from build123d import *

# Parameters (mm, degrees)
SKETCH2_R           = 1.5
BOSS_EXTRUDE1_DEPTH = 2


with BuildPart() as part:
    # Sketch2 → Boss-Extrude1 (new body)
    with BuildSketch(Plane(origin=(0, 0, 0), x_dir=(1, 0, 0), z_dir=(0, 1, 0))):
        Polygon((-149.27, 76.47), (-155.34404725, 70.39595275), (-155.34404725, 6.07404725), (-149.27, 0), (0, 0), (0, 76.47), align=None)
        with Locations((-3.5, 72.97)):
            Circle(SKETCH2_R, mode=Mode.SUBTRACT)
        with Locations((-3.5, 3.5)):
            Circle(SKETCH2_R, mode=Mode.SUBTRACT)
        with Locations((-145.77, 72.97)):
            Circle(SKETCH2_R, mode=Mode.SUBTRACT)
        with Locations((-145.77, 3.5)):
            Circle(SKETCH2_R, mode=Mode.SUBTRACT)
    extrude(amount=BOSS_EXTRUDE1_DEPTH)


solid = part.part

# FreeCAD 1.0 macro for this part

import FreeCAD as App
import Part
import Sketcher
from FreeCAD import Vector


def add_polygon(sketch, points):
    """Adds a closed chain of lines whose ends are joined by coincident constraints."""
    first, n = sketch.GeometryCount, len(points)
    for a, b in zip(points, points[1:] + points[:1]):
        sketch.addGeometry(Part.LineSegment(App.Vector(*a, 0), App.Vector(*b, 0)), False)
    for i in range(n):
        sketch.addConstraint(Sketcher.Constraint("Coincident", first + i, 2, first + (i + 1) % n, 1))

doc = App.newDocument("Part")
body = doc.addObject("PartDesign::Body", "Body")

sketch1 = body.newObject("Sketcher::SketchObject", "Sketch")
sketch1.AttachmentSupport = (doc.getObject("XZ_Plane"), [""])
sketch1.MapMode = "FlatFace"
add_polygon(sketch1, [(-149.3, -76.5), (-155.3, -70.4), (-155.3, -6.1), (-149.3, 0), (0, 0), (0, -76.5)])
sketch1.addGeometry(Part.Circle(Vector(-145.8, -3.5, 0), Vector(0, 0, 1), 1.5), False)
sketch1.addGeometry(Part.Circle(Vector(-3.5, -3.5, 0), Vector(0, 0, 1), 1.5), False)
sketch1.addGeometry(Part.Circle(Vector(-145.8, -73, 0), Vector(0, 0, 1), 1.5), False)
sketch1.addGeometry(Part.Circle(Vector(-3.5, -73, 0), Vector(0, 0, 1), 1.5), False)
sketch1.addConstraint(Sketcher.Constraint("Vertical", 1))
sketch1.addConstraint(Sketcher.Constraint("Horizontal", 3))
sketch1.addConstraint(Sketcher.Constraint("Vertical", 4))
sketch1.addConstraint(Sketcher.Constraint("Horizontal", 5))
sketch1.addConstraint(Sketcher.Constraint("Coincident", 3, 2, -1, 1))
sketch1.addConstraint(Sketcher.Constraint("Equal", 6, 7))
sketch1.addConstraint(Sketcher.Constraint("Equal", 7, 8))
sketch1.addConstraint(Sketcher.Constraint("Equal", 8, 9))
sketch1.addConstraint(Sketcher.Constraint("Perpendicular", 0, 2))
sketch1.addConstraint(Sketcher.Constraint("Horizontal", 6, 3, 7, 3))
sketch1.addConstraint(Sketcher.Constraint("Horizontal", 8, 3, 9, 3))
sketch1.addConstraint(Sketcher.Constraint("Vertical", 6, 3, 8, 3))
sketch1.addConstraint(Sketcher.Constraint("Vertical", 7, 3, 9, 3))
sketch1.addConstraint(Sketcher.Constraint("Vertical", 2, 2, 5, 2))
sketch1.addConstraint(Sketcher.Constraint("Equal", 0, 2))
sketch1.addConstraint(Sketcher.Constraint("Diameter", 6, 3.0))
sketch1.addConstraint(Sketcher.Constraint("DistanceX", 3, 1, 3, 2, 149.27))
sketch1.addConstraint(Sketcher.Constraint("DistanceY", 4, 2, 4, 1, 76.47))
sketch1.addConstraint(Sketcher.Constraint("DistanceY", 6, 3, -1, 1, 3.5))
sketch1.addConstraint(Sketcher.Constraint("DistanceX", 7, 3, -1, 1, 3.5))
sketch1.addConstraint(Sketcher.Constraint("DistanceX", 2, 2, 6, 3, 3.5))
sketch1.addConstraint(Sketcher.Constraint("DistanceY", 4, 2, 9, 3, 3.5))
sketch1.addConstraint(Sketcher.Constraint("Distance", 0, 8.59))
pad1 = body.newObject("PartDesign::Pad", "Pad")
pad1.Profile = sketch1
pad1.Length = 2
pad1.Reversed = True

doc.recompute()
